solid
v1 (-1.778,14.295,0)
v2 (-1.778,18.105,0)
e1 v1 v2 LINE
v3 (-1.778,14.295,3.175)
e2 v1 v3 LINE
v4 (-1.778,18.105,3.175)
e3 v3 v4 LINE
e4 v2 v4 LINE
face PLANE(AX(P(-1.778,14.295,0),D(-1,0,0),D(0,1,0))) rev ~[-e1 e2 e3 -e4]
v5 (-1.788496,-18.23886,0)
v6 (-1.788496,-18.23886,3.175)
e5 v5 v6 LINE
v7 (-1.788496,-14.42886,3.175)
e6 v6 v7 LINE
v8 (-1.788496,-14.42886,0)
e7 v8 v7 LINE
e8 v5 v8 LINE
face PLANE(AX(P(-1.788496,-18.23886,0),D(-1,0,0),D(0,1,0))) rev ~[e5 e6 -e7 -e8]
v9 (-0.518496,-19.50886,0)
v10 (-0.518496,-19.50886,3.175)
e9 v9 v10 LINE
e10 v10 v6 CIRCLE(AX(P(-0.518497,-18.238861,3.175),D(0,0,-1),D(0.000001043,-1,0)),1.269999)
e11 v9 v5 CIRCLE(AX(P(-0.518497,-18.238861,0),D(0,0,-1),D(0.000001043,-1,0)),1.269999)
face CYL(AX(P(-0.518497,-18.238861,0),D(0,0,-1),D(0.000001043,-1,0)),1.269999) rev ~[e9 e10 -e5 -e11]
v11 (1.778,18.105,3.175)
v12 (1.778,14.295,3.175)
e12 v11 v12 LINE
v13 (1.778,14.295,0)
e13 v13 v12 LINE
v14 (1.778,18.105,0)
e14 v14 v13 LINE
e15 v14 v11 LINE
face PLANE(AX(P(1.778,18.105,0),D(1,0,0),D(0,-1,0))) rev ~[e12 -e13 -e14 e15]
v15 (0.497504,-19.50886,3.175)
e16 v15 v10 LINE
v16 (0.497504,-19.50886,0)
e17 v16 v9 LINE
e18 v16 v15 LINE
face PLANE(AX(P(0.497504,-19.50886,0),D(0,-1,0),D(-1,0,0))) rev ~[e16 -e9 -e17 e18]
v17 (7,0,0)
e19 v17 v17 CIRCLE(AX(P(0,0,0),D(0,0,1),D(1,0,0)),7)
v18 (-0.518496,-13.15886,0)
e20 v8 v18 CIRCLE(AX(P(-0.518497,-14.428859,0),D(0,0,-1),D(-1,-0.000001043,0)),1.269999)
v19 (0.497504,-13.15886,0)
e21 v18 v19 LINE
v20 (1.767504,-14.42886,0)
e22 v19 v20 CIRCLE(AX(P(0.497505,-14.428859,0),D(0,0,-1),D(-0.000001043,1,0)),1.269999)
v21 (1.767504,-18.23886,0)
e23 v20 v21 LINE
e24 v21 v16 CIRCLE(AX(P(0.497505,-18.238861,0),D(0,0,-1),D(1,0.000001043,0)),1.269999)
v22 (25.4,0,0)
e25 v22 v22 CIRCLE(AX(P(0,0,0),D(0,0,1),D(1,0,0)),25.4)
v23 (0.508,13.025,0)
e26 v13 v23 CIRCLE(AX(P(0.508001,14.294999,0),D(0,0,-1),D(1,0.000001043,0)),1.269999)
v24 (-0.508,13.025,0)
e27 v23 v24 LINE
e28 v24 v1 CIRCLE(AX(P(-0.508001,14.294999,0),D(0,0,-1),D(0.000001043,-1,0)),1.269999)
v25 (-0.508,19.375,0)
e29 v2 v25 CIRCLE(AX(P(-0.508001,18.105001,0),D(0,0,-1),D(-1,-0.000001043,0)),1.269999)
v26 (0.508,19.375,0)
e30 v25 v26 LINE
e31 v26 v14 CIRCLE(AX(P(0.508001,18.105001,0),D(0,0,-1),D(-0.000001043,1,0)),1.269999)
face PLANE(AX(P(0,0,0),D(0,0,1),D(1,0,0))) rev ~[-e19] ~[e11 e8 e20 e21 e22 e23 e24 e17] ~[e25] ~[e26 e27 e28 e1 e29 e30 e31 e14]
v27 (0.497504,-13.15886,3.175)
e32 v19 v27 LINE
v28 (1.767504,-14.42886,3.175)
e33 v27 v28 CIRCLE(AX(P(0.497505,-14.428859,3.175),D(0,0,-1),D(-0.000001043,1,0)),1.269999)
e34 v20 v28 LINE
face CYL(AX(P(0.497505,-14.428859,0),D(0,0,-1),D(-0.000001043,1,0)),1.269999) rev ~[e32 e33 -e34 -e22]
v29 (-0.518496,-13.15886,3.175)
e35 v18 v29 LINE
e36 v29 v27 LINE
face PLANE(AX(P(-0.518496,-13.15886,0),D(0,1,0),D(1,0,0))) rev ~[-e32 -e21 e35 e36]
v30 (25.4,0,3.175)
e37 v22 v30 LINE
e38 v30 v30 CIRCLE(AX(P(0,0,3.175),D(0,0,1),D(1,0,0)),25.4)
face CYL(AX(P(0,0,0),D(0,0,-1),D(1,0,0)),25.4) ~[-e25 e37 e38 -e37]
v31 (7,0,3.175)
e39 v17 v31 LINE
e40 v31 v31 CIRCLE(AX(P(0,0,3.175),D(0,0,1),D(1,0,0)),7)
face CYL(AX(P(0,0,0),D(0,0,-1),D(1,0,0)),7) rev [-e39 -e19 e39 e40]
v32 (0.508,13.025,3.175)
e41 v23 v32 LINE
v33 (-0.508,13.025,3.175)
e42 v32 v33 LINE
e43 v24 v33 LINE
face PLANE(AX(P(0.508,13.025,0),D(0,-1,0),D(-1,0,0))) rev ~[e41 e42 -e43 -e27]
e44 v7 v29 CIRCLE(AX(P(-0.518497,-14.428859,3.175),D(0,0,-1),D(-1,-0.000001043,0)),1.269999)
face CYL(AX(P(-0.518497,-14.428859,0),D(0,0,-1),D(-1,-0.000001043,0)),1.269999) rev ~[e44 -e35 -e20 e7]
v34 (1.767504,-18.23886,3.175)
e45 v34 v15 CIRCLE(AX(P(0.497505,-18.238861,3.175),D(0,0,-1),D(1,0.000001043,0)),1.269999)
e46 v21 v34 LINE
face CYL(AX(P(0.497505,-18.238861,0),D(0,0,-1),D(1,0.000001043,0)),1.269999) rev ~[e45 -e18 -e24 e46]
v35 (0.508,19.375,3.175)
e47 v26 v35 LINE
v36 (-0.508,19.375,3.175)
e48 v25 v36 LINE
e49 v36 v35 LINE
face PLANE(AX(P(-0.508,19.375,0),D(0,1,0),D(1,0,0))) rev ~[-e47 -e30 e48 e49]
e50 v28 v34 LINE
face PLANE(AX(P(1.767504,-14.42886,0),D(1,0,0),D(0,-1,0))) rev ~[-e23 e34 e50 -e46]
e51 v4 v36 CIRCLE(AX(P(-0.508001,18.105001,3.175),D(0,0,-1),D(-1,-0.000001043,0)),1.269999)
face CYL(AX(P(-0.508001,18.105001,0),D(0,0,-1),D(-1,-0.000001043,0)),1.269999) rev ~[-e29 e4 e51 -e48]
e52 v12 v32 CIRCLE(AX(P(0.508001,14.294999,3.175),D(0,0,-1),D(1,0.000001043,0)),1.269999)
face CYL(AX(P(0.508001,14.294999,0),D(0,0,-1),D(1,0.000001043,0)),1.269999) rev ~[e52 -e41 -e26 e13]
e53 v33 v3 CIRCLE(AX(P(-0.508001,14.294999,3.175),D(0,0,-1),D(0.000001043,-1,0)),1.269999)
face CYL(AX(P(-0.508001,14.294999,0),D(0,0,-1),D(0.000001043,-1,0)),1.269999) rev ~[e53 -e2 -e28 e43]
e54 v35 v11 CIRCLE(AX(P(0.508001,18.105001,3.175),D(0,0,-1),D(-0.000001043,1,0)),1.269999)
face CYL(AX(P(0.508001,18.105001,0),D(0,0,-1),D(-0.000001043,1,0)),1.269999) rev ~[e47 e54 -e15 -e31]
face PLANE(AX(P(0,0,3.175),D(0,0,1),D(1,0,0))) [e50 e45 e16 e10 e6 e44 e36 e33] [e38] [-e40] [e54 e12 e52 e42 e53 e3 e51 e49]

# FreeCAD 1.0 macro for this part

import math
import FreeCAD as App
import Part
import Sketcher

V = App.Vector
Q = App.Units.Quantity

doc = App.newDocument("Part")
body = doc.addObject("PartDesign::Body", "Body")

# Sketch on XY plane
sketch1 = body.newObject("Sketcher::SketchObject", "Sketch")
sketch1.AttachmentSupport = (doc.getObject("XY_Plane"), [""])
sketch1.MapMode = "FlatFace"
sketch1.addGeometry(Part.Circle(V(0, 0, 0), V(0, 0, 1), 25.4), False)
sketch1.addGeometry(Part.ArcOfCircle(Part.Circle(V(-0.5, -14.4, 0), V(0, 0, 1), 1.3), math.radians(90), math.radians(180)), False)
sketch1.addGeometry(Part.LineSegment(V(-0.5, -13.2, 0), V(0.5, -13.2, 0)), False)
sketch1.addGeometry(Part.ArcOfCircle(Part.Circle(V(0.5, -14.4, 0), V(0, 0, 1), 1.3), math.radians(0), math.radians(90)), False)
sketch1.addGeometry(Part.LineSegment(V(1.8, -14.4, 0), V(1.8, -18.2, 0)), False)
sketch1.addGeometry(Part.ArcOfCircle(Part.Circle(V(0.5, -18.2, 0), V(0, 0, 1), 1.3), math.radians(-90), math.radians(0)), False)
sketch1.addGeometry(Part.LineSegment(V(0.5, -19.5, 0), V(-0.5, -19.5, 0)), False)
sketch1.addGeometry(Part.ArcOfCircle(Part.Circle(V(-0.5, -18.2, 0), V(0, 0, 1), 1.3), math.radians(180), math.radians(270)), False)
sketch1.addGeometry(Part.LineSegment(V(-1.8, -18.2, 0), V(-1.8, -14.4, 0)), False)
sketch1.addGeometry(Part.Circle(V(0, 0, 0), V(0, 0, 1), 7), False)
sketch1.addGeometry(Part.ArcOfCircle(Part.Circle(V(-0.5, 18.1, 0), V(0, 0, 1), 1.3), math.radians(90), math.radians(180)), False)
sketch1.addGeometry(Part.LineSegment(V(-0.5, 19.4, 0), V(0.5, 19.4, 0)), False)
sketch1.addGeometry(Part.ArcOfCircle(Part.Circle(V(0.5, 18.1, 0), V(0, 0, 1), 1.3), math.radians(0), math.radians(90)), False)
sketch1.addGeometry(Part.LineSegment(V(1.8, 18.1, 0), V(1.8, 14.3, 0)), False)
sketch1.addGeometry(Part.ArcOfCircle(Part.Circle(V(0.5, 14.3, 0), V(0, 0, 1), 1.3), math.radians(-90), math.radians(0)), False)
sketch1.addGeometry(Part.LineSegment(V(0.5, 13, 0), V(-0.5, 13, 0)), False)
sketch1.addGeometry(Part.ArcOfCircle(Part.Circle(V(-0.5, 14.3, 0), V(0, 0, 1), 1.3), math.radians(180), math.radians(270)), False)
sketch1.addGeometry(Part.LineSegment(V(-1.8, 14.3, 0), V(-1.8, 18.1, 0)), False)
sketch1.addConstraint(Sketcher.Constraint("Tangent", 1, 1, 2, 1))
sketch1.addConstraint(Sketcher.Constraint("Tangent", 2, 2, 3, 2))
sketch1.addConstraint(Sketcher.Constraint("Tangent", 3, 1, 4, 1))
sketch1.addConstraint(Sketcher.Constraint("Tangent", 4, 2, 5, 2))
sketch1.addConstraint(Sketcher.Constraint("Tangent", 5, 1, 6, 1))
sketch1.addConstraint(Sketcher.Constraint("Tangent", 6, 2, 7, 2))
sketch1.addConstraint(Sketcher.Constraint("Tangent", 7, 1, 8, 1))
sketch1.addConstraint(Sketcher.Constraint("Tangent", 8, 2, 1, 2))
sketch1.addConstraint(Sketcher.Constraint("Tangent", 10, 1, 11, 1))
sketch1.addConstraint(Sketcher.Constraint("Tangent", 11, 2, 12, 2))
sketch1.addConstraint(Sketcher.Constraint("Tangent", 12, 1, 13, 1))
sketch1.addConstraint(Sketcher.Constraint("Tangent", 13, 2, 14, 2))
sketch1.addConstraint(Sketcher.Constraint("Tangent", 14, 1, 15, 1))
sketch1.addConstraint(Sketcher.Constraint("Tangent", 15, 2, 16, 2))
sketch1.addConstraint(Sketcher.Constraint("Tangent", 16, 1, 17, 1))
sketch1.addConstraint(Sketcher.Constraint("Tangent", 17, 2, 10, 2))
sketch1.addConstraint(Sketcher.Constraint("Horizontal", 2))
sketch1.addConstraint(Sketcher.Constraint("Vertical", 4))
sketch1.addConstraint(Sketcher.Constraint("Horizontal", 6))
sketch1.addConstraint(Sketcher.Constraint("Vertical", 8))
sketch1.addConstraint(Sketcher.Constraint("Horizontal", 11))
sketch1.addConstraint(Sketcher.Constraint("Vertical", 13))
sketch1.addConstraint(Sketcher.Constraint("Horizontal", 15))
sketch1.addConstraint(Sketcher.Constraint("Vertical", 17))
sketch1.addConstraint(Sketcher.Constraint("Coincident", 0, 3, -1, 1))
sketch1.addConstraint(Sketcher.Constraint("Coincident", 9, 3, -1, 1))
sketch1.addConstraint(Sketcher.Constraint("Equal", 1, 3))
sketch1.addConstraint(Sketcher.Constraint("Equal", 3, 5))
sketch1.addConstraint(Sketcher.Constraint("Equal", 5, 7))
sketch1.addConstraint(Sketcher.Constraint("Equal", 7, 10))
sketch1.addConstraint(Sketcher.Constraint("Equal", 10, 12))
sketch1.addConstraint(Sketcher.Constraint("Equal", 12, 14))
sketch1.addConstraint(Sketcher.Constraint("Equal", 14, 16))
sketch1.addConstraint(Sketcher.Constraint("Equal", 6, 11))
sketch1.addConstraint(Sketcher.Constraint("Equal", 8, 13))
sketch1.addConstraint(Sketcher.Constraint("Diameter", 0, Q("2 in")))
sketch1.addConstraint(Sketcher.Constraint("Radius", 1, Q("0.0499999 in")))
sketch1.addConstraint(Sketcher.Constraint("DistanceX", 2, 1, 2, 2, Q("0.04 in")))
sketch1.addConstraint(Sketcher.Constraint("DistanceY", 4, 2, 4, 1, Q("0.15 in")))
sketch1.addConstraint(Sketcher.Constraint("Diameter", 9, 14.0))
sketch1.addConstraint(Sketcher.Constraint("DistanceX", 10, 3, -1, 1, Q("0.0200001 in")))
sketch1.addConstraint(Sketcher.Constraint("DistanceY", -1, 1, 10, 3, 18.105001))
sketch1.addConstraint(Sketcher.Constraint("DistanceX", 1, 3, 12, 3, 1.026499))
sketch1.addConstraint(Sketcher.Constraint("DistanceY", 1, 3, -1, 1, 14.428859))
pad1 = body.newObject("PartDesign::Pad", "Pad")
pad1.Profile = sketch1
pad1.Length = Q("0.125 in")

doc.recompute()
